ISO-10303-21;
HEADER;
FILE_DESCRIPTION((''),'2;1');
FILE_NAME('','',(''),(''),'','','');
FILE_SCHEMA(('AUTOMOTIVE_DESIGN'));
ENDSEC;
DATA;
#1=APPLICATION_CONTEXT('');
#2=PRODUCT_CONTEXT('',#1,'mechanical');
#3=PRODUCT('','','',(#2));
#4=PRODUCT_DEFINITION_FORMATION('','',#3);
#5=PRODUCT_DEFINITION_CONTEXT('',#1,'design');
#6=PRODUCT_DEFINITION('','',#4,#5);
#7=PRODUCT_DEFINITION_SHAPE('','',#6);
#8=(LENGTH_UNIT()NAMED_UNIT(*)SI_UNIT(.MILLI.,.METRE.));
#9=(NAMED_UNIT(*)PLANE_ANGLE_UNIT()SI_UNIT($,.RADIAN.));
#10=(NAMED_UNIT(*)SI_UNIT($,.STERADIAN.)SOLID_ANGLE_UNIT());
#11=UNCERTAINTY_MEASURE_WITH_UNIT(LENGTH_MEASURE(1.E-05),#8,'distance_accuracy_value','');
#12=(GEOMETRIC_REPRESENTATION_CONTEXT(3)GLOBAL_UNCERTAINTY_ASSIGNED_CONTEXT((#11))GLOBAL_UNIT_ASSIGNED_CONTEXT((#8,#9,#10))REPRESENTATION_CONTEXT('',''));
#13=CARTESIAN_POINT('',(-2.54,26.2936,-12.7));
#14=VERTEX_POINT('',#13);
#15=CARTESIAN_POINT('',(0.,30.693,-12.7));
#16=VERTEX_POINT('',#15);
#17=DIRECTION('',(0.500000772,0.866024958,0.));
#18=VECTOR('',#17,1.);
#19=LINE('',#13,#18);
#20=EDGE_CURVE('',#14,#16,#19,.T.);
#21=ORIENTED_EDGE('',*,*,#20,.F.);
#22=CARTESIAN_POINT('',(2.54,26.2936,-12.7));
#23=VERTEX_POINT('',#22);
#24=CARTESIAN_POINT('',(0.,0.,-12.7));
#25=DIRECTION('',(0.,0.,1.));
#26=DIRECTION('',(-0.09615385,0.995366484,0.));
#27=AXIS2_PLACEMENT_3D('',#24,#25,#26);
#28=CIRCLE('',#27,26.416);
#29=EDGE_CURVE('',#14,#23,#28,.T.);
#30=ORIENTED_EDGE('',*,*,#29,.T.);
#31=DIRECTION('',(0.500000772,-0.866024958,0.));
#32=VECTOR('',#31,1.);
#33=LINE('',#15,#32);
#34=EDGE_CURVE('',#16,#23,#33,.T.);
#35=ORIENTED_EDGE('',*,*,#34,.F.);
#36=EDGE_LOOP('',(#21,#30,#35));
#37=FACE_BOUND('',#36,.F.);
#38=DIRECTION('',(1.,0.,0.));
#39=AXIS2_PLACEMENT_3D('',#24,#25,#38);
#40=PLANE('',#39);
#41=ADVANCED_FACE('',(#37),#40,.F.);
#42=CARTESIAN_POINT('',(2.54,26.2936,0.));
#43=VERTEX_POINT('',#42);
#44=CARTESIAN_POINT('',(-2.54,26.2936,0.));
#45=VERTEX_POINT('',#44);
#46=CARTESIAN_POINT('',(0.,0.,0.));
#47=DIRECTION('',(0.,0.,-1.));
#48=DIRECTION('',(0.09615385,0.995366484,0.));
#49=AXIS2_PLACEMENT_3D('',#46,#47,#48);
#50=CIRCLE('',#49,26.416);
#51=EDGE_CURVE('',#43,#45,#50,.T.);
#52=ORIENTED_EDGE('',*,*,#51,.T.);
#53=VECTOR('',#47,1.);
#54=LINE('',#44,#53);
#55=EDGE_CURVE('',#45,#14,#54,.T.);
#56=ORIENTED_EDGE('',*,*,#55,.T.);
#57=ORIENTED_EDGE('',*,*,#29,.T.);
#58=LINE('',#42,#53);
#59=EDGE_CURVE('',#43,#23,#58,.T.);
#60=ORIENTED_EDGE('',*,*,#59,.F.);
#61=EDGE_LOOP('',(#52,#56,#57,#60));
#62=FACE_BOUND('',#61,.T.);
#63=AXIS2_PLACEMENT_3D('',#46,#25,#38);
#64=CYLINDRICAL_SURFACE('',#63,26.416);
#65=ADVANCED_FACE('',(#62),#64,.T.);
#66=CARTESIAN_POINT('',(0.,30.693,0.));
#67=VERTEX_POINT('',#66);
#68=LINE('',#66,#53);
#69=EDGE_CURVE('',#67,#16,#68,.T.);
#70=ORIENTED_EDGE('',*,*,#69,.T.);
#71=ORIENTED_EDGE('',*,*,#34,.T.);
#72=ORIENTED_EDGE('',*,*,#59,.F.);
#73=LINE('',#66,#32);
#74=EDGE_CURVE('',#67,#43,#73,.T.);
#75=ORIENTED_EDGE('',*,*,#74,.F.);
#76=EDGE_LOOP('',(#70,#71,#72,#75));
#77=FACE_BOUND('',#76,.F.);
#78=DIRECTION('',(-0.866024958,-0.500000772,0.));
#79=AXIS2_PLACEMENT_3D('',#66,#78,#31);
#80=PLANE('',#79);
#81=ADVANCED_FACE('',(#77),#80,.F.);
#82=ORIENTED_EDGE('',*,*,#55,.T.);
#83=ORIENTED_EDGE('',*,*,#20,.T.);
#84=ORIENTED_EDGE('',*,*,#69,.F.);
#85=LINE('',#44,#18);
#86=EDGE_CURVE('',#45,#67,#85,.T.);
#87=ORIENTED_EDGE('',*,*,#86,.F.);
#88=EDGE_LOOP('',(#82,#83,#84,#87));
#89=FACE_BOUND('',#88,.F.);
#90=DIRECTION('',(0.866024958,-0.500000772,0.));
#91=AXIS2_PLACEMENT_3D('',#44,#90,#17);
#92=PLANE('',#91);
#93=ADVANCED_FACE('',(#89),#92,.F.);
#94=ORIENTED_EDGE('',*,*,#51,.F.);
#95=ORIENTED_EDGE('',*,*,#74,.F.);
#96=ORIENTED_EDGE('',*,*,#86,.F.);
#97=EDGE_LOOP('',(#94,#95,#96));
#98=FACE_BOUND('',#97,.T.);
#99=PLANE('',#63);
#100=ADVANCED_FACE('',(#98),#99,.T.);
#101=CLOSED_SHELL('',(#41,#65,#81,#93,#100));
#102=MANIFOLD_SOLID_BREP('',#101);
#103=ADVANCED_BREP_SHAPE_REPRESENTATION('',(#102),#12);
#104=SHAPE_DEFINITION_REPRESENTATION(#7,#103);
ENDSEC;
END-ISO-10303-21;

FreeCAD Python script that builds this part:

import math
import FreeCAD as App
import Part
import Sketcher
Q = App.Units.Quantity

doc = App.newDocument("Part")
body = doc.addObject("PartDesign::Body", "Body")

# Sketch on XY plane
sketch1 = body.newObject("Sketcher::SketchObject", "Sketch")
sketch1.AttachmentSupport = (doc.getObject("XY_Plane"), [""])
sketch1.MapMode = "FlatFace"
sketch1.addGeometry([
    Part.ArcOfCircle(Part.Circle(App.Vector(0, 0, 0), App.Vector(0, 0, 1), 26), math.radians(96), math.radians(444)),
    Part.LineSegment(App.Vector(3, 26, 0), App.Vector(0, 31, 0)),
    Part.LineSegment(App.Vector(0, 31, 0), App.Vector(-3, 26, 0)),
], False)
sketch1.addConstraint([
    Sketcher.Constraint("Coincident", 0, 2, 1, 1),
    Sketcher.Constraint("Coincident", 1, 2, 2, 1),
    Sketcher.Constraint("Coincident", 2, 2, 0, 1),
    Sketcher.Constraint("Coincident", 0, 3, -1, 1),
    Sketcher.Constraint("PointOnObject", 1, 2, -2),
    Sketcher.Constraint("Horizontal", 0, 2, 2, 2),
    Sketcher.Constraint("Radius", 0, Q("1.04 in")),
    Sketcher.Constraint("Distance", 1, Q("0.2 in")),
    Sketcher.Constraint("DistanceX", 2, 2, 0, 2, Q("0.2 in")),
])
pad1 = body.newObject("PartDesign::Pad", "Pad")
pad1.Profile = sketch1
pad1.Length = Q("0.5 in")
pad1.Reversed = True

doc.recompute()
